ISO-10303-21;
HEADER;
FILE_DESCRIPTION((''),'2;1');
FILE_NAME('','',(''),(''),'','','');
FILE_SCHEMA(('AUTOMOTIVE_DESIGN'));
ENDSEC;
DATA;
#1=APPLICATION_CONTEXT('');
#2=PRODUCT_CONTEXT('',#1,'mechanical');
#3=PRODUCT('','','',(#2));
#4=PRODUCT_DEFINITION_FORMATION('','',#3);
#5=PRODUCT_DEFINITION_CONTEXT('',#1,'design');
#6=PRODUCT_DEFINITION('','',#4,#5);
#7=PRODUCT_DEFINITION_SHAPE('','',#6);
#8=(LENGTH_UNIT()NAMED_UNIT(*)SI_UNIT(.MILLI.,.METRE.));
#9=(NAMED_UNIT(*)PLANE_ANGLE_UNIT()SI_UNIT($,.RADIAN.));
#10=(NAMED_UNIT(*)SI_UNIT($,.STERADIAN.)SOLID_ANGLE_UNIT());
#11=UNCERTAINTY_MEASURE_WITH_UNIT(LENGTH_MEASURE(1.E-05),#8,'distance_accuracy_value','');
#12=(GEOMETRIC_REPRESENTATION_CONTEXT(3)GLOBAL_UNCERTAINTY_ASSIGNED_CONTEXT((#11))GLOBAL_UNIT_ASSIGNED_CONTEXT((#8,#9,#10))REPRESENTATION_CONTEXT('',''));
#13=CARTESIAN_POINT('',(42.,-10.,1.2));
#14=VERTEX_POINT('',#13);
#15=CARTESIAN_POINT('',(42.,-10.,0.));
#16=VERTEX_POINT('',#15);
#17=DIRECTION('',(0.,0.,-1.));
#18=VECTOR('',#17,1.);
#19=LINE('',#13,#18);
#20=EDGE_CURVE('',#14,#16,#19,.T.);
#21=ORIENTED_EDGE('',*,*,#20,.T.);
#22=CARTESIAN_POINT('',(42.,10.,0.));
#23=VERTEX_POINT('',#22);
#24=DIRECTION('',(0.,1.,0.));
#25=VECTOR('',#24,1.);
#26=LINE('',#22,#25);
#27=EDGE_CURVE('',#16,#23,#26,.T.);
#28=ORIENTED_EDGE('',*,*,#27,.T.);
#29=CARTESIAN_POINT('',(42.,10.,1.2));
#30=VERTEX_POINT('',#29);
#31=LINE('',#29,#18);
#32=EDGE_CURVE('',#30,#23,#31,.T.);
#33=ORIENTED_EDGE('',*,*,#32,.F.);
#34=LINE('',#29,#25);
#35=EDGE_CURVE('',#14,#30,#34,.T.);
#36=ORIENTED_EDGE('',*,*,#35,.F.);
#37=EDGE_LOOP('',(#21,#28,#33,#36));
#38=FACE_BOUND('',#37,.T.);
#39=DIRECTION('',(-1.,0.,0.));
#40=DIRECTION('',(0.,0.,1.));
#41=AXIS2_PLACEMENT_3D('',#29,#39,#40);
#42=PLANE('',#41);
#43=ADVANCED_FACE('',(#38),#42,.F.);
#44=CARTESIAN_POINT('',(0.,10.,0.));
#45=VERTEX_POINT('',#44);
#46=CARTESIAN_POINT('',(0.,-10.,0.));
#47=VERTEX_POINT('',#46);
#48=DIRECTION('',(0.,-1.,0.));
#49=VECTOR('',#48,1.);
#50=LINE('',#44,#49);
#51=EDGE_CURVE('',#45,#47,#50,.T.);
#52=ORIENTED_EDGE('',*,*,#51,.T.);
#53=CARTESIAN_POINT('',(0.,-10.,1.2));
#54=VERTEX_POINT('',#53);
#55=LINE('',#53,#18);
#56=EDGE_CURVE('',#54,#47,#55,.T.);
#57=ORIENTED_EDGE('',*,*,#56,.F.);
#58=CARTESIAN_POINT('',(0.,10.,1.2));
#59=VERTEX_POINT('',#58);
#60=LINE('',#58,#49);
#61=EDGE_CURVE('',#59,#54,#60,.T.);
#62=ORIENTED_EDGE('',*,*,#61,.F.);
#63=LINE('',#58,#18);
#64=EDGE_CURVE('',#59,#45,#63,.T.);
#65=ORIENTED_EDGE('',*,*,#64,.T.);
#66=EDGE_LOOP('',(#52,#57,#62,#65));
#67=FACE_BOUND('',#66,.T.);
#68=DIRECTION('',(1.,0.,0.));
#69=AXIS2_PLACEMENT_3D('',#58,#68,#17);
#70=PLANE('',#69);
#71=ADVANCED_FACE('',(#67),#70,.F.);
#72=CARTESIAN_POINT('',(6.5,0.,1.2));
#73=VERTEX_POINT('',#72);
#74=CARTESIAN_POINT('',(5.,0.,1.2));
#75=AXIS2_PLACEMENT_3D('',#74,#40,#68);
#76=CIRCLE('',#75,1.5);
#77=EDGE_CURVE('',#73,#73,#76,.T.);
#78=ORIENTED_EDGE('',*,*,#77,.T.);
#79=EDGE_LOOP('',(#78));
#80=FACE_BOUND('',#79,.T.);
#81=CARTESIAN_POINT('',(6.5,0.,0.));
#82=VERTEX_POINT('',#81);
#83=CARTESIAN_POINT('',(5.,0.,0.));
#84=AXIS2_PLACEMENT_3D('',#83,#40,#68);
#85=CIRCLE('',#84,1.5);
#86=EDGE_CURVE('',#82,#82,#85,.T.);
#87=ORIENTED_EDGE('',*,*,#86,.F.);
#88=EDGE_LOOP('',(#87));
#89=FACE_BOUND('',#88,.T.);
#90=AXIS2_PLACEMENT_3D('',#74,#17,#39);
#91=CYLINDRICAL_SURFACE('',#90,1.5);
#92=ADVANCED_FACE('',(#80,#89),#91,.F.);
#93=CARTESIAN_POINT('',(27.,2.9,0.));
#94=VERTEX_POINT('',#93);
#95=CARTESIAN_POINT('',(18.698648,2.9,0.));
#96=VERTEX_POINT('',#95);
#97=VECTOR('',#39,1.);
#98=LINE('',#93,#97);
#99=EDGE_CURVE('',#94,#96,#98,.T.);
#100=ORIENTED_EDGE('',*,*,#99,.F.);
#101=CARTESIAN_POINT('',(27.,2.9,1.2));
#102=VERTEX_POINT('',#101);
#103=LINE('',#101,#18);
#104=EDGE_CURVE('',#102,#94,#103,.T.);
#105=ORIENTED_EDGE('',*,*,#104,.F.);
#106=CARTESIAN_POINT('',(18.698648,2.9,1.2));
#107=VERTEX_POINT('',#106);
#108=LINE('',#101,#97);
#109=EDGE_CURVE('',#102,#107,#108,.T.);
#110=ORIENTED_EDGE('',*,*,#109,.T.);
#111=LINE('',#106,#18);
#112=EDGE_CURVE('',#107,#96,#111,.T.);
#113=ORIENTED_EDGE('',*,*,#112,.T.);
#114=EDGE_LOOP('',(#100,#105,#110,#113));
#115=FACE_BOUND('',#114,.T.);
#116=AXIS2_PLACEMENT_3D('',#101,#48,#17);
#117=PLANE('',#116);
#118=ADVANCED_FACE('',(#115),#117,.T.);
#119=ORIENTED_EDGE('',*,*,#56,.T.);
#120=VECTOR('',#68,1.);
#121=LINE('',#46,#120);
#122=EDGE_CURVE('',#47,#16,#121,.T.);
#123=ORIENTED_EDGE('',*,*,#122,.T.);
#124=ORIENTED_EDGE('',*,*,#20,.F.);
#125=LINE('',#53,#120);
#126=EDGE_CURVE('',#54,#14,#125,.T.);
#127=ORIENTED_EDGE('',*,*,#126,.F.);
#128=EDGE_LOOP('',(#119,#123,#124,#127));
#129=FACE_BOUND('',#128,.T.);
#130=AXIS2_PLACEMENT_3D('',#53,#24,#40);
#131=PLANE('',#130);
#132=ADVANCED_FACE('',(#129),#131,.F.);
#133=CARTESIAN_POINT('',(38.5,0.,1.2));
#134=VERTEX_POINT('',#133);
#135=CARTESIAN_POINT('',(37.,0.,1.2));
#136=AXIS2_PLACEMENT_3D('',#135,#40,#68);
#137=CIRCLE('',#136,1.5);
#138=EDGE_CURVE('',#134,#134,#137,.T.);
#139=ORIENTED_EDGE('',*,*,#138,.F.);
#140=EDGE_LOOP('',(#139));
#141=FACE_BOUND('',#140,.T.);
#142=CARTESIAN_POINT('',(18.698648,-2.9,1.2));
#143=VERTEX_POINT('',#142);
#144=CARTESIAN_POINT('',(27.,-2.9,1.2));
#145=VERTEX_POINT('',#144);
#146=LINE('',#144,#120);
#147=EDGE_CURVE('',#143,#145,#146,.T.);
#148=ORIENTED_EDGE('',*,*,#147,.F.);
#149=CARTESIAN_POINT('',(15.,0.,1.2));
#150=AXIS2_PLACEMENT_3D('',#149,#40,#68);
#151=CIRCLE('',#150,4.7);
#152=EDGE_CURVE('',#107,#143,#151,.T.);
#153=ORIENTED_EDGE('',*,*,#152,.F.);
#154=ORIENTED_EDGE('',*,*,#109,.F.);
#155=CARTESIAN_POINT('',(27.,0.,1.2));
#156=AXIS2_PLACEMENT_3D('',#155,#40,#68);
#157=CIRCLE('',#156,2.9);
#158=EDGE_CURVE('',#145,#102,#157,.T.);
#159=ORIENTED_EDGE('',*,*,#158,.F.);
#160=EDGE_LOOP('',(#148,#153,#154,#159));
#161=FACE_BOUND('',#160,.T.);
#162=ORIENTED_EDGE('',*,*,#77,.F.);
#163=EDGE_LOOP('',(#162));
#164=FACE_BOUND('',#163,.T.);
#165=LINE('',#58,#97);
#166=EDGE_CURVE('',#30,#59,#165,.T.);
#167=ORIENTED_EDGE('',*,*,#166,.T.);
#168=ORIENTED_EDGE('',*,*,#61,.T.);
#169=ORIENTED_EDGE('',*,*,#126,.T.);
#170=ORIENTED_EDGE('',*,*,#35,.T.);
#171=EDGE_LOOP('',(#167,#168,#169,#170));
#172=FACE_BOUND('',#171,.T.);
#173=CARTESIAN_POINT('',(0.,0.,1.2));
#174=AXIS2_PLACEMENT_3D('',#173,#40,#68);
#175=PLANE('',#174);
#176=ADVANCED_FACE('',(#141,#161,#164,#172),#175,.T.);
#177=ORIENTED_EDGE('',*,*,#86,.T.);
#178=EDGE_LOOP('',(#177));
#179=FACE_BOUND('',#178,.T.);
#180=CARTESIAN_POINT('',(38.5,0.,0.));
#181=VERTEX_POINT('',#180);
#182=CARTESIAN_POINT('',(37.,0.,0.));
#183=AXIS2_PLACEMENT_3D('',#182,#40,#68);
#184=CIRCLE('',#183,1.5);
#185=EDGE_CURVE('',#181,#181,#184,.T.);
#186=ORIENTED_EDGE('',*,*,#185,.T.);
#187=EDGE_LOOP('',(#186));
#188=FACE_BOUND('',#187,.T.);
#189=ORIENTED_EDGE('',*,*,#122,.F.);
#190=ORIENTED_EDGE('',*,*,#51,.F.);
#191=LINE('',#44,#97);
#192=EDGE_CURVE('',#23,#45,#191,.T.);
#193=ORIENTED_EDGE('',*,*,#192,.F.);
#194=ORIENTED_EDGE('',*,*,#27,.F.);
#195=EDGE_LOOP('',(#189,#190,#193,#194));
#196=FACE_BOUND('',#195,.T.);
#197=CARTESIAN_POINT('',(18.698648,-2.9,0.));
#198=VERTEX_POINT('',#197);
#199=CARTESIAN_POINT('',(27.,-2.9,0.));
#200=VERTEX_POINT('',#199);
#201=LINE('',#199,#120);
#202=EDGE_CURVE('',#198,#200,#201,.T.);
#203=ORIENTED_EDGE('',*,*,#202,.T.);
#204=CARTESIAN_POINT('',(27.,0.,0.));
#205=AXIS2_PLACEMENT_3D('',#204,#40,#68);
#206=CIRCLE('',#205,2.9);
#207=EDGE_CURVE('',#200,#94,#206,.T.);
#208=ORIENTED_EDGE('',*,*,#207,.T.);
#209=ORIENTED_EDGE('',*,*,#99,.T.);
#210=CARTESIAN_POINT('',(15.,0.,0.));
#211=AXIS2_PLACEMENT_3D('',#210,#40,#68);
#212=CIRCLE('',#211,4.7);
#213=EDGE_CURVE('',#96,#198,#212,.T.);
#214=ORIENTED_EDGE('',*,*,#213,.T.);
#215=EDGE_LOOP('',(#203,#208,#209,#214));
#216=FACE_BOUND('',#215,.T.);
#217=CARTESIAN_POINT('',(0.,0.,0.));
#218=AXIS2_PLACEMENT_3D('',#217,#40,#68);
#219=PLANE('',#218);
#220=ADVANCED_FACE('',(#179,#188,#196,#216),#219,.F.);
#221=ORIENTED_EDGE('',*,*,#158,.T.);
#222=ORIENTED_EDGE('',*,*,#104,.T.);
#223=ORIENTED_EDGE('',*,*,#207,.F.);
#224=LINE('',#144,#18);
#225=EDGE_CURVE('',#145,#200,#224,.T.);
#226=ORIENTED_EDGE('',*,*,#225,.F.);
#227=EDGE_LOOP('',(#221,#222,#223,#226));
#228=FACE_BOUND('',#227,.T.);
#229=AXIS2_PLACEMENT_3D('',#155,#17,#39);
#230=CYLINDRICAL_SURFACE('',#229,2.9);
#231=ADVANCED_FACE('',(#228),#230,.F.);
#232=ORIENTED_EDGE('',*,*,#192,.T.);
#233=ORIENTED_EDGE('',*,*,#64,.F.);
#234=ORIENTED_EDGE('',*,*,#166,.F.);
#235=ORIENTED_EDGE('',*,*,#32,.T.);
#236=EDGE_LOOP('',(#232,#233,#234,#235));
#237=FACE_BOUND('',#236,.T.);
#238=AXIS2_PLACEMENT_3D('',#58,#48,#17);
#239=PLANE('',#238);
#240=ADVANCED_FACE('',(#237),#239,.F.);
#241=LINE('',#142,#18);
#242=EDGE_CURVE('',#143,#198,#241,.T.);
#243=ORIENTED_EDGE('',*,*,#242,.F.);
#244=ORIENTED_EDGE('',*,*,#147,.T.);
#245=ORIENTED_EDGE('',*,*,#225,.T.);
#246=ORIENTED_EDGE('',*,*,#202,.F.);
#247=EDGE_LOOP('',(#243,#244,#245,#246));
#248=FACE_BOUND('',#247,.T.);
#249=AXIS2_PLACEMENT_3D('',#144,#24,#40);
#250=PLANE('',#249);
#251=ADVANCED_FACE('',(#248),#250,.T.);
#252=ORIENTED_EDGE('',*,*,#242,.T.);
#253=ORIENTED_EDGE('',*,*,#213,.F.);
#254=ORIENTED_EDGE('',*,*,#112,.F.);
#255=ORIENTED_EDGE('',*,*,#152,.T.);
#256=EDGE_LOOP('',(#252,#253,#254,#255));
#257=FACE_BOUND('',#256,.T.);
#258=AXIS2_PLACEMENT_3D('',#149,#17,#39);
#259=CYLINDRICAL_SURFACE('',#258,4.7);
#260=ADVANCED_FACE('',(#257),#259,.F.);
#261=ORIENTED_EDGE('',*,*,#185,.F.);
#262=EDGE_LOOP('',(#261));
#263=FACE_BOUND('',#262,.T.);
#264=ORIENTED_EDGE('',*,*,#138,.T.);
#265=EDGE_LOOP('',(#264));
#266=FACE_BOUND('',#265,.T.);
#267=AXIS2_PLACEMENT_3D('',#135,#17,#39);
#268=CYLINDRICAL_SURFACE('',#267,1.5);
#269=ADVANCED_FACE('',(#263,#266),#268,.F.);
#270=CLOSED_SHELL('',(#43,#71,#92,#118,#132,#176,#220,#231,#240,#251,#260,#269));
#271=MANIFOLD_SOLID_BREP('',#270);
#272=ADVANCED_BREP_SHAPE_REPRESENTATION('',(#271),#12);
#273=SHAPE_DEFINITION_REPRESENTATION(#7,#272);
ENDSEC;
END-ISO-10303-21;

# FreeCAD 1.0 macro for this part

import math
import FreeCAD as App
import Part
import Sketcher
Q = App.Units.Quantity


def add_polygon(sketch, points):
    """Adds a closed chain of lines whose ends are joined by coincident constraints."""
    first, n = sketch.GeometryCount, len(points)
    for a, b in zip(points, points[1:] + points[:1]):
        sketch.addGeometry(Part.LineSegment(App.Vector(*a, 0), App.Vector(*b, 0)), False)
    for i in range(n):
        sketch.addConstraint(Sketcher.Constraint("Coincident", first + i, 2, first + (i + 1) % n, 1))

doc = App.newDocument("Part")
body = doc.addObject("PartDesign::Body", "Body")

# Sketch on XY plane
sketch1 = body.newObject("Sketcher::SketchObject", "Sketch")
sketch1.AttachmentSupport = (doc.getObject("XY_Plane"), [""])
sketch1.MapMode = "FlatFace"
add_polygon(sketch1, [(0, 10), (0, -10), (42, -10), (42, 10)])  # lines 0-3
sketch1.addGeometry(Part.Circle(App.Vector(5, 0, 0), App.Vector(0, 0, 1), 1.5), False)  # 4
sketch1.addGeometry(Part.LineSegment(App.Vector(18.7, 2.9, 0), App.Vector(27, 2.9, 0)), False)  # 5
sketch1.addGeometry(Part.ArcOfCircle(Part.Circle(App.Vector(27, 0, 0), App.Vector(0, 0, 1), 2.9), math.radians(-90), math.radians(90)), False)  # 6
sketch1.addGeometry(Part.LineSegment(App.Vector(27, -2.9, 0), App.Vector(18.7, -2.9, 0)), False)  # 7
sketch1.addGeometry(Part.ArcOfCircle(Part.Circle(App.Vector(15, 0, 0), App.Vector(0, 0, 1), 4.7), math.radians(38), math.radians(322)), False)  # 8
sketch1.addGeometry(Part.Circle(App.Vector(37, 0, 0), App.Vector(0, 0, 1), 1.5), False)  # 9
sketch1.addConstraint(Sketcher.Constraint("Tangent", 5, 2, 6, 2))
sketch1.addConstraint(Sketcher.Constraint("Tangent", 6, 1, 7, 1))
sketch1.addConstraint(Sketcher.Constraint("Coincident", 7, 2, 8, 2))
sketch1.addConstraint(Sketcher.Constraint("Coincident", 8, 1, 5, 1))
sketch1.addConstraint(Sketcher.Constraint("Vertical", 0))
sketch1.addConstraint(Sketcher.Constraint("Horizontal", 1))
sketch1.addConstraint(Sketcher.Constraint("Vertical", 2))
sketch1.addConstraint(Sketcher.Constraint("Horizontal", 3))
sketch1.addConstraint(Sketcher.Constraint("Horizontal", 5))
sketch1.addConstraint(Sketcher.Constraint("Horizontal", 7))
sketch1.addConstraint(Sketcher.Constraint("Equal", 4, 9))
sketch1.addConstraint(Sketcher.Constraint("Symmetric", 0, 2, 3, 2, -1, 1))
sketch1.addConstraint(Sketcher.Constraint("Symmetric", 7, 2, 8, 1, -1))
sketch1.addConstraint(Sketcher.Constraint("PointOnObject", 4, 3, -1))
sketch1.addConstraint(Sketcher.Constraint("PointOnObject", 9, 3, -1))
sketch1.addConstraint(Sketcher.Constraint("Diameter", 4, Q("3 mm")))
sketch1.addConstraint(Sketcher.Constraint("Radius", 6, Q("2.9 mm")))
sketch1.addConstraint(Sketcher.Constraint("Radius", 8, Q("4.7 mm")))
sketch1.addConstraint(Sketcher.Constraint("DistanceX", 1, 1, 1, 2, Q("42 mm")))
sketch1.addConstraint(Sketcher.Constraint("DistanceY", 0, 2, 0, 1, Q("20 mm")))
sketch1.addConstraint(Sketcher.Constraint("DistanceX", -1, 1, 4, 3, Q("5 mm")))
sketch1.addConstraint(Sketcher.Constraint("DistanceX", -1, 1, 6, 3, Q("27 mm")))
sketch1.addConstraint(Sketcher.Constraint("DistanceX", -1, 1, 8, 3, Q("15 mm")))
sketch1.addConstraint(Sketcher.Constraint("DistanceX", -1, 1, 9, 3, Q("37 mm")))
pad1 = body.newObject("PartDesign::Pad", "Pad")
pad1.Profile = sketch1
pad1.Length = 1.2

doc.recompute()
